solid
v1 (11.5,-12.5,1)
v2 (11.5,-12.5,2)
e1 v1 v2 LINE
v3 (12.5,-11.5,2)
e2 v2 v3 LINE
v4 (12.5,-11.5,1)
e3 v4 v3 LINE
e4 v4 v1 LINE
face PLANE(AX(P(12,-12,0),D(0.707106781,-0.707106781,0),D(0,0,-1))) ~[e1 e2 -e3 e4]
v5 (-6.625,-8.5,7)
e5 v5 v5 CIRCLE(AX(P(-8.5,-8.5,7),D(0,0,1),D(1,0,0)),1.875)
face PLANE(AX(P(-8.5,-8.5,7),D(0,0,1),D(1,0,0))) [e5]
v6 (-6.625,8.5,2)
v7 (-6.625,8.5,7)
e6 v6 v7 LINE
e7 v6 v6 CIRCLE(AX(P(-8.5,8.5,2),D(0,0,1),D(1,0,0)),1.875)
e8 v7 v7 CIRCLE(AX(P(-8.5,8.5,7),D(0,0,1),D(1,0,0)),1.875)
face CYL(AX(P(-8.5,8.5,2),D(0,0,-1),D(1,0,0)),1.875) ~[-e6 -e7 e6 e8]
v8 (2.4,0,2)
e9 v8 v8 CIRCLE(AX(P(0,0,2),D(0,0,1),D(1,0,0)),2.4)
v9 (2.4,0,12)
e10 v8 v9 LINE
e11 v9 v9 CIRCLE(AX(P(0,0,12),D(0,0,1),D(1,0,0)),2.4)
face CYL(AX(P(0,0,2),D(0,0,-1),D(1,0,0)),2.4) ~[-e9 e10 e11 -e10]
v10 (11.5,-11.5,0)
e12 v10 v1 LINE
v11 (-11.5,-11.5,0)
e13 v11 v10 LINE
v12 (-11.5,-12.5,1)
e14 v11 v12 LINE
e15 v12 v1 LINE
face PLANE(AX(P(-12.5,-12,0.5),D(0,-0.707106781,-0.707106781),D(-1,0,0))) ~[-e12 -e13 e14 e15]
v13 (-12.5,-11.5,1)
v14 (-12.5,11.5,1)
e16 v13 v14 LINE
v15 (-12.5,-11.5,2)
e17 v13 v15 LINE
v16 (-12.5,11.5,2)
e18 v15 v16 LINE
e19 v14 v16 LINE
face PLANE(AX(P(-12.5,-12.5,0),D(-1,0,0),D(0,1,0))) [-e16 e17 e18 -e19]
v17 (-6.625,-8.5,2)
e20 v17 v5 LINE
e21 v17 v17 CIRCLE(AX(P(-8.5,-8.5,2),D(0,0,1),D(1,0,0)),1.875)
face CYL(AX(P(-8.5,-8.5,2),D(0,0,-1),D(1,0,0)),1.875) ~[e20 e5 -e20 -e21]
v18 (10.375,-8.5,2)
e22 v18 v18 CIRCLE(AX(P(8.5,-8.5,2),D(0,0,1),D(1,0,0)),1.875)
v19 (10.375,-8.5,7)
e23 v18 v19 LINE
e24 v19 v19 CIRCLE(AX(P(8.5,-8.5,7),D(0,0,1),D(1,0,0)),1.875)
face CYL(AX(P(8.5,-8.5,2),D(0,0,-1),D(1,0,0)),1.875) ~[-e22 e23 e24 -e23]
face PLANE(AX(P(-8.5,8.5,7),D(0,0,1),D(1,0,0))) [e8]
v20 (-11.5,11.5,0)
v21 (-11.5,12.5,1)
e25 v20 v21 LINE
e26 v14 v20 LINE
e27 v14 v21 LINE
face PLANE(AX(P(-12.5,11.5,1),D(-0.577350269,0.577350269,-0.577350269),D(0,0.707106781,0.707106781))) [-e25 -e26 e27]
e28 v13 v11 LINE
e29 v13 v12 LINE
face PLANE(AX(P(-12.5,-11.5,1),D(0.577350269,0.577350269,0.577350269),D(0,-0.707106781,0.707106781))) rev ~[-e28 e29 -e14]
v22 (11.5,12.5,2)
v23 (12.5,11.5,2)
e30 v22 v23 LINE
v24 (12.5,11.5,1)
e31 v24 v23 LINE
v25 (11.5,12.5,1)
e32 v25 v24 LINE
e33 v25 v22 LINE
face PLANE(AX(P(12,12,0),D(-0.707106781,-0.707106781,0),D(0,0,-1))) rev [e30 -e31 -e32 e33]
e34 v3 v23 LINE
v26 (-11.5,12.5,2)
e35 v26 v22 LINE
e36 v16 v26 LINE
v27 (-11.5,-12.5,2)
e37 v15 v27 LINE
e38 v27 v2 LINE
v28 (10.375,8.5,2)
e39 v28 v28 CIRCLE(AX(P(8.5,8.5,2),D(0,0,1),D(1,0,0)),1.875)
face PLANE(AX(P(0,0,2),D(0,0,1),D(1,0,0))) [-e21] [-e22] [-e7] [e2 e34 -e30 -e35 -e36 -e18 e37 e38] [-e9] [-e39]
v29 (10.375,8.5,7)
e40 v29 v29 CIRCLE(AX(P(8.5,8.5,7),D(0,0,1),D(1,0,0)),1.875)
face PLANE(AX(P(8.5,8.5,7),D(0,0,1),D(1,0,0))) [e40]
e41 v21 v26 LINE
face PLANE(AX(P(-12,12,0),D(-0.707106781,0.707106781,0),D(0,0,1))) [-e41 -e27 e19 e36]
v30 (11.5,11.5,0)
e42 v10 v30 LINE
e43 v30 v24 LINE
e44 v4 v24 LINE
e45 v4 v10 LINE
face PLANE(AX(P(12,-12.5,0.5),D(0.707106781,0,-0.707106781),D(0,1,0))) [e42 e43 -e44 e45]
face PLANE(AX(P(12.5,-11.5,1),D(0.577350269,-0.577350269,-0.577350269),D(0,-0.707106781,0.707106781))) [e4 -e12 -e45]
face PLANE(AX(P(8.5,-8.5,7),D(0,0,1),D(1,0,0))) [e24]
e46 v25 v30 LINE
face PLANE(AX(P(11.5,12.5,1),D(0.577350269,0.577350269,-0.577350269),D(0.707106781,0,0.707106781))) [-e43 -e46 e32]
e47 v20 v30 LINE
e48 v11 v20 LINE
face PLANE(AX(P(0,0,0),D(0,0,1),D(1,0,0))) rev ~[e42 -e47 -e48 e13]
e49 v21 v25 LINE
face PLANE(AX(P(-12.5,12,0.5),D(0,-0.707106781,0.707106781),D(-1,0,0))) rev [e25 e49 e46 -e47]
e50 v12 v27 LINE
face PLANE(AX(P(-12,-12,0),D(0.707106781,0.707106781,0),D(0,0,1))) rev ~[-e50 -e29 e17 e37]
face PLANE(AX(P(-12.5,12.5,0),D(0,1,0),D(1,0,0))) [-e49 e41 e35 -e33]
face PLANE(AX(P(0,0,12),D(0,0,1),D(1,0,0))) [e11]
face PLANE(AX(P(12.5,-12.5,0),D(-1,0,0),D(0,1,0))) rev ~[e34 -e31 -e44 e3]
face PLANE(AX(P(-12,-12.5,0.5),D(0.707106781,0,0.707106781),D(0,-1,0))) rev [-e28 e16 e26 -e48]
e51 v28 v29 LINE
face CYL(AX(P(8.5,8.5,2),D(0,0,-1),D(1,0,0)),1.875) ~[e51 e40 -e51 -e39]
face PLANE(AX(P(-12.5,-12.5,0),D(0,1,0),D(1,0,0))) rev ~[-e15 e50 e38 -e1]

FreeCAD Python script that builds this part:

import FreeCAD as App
import Part
import Sketcher
from FreeCAD import Vector
Q = App.Units.Quantity


def edges_at(feature, points):
    """Names of the edges that pass closest to the given points."""
    edges = feature.Shape.Edges
    near = lambda p: min(range(len(edges)), key=lambda i: edges[i].distToShape(Part.Vertex(*p))[0])
    return sorted({f"Edge{near(p) + 1}" for p in points})


def add_polygon(sketch, points):
    """Adds a closed chain of lines whose ends are joined by coincident constraints."""
    first, n = sketch.GeometryCount, len(points)
    for a, b in zip(points, points[1:] + points[:1]):
        sketch.addGeometry(Part.LineSegment(App.Vector(*a, 0), App.Vector(*b, 0)), False)
    for i in range(n):
        sketch.addConstraint(Sketcher.Constraint("Coincident", first + i, 2, first + (i + 1) % n, 1))

doc = App.newDocument("Part")
params = doc.addObject("Spreadsheet::Sheet", "Params")
for row, (alias, value) in enumerate([
    ("sketch1_width", "25 mm"),
    ("pad1_length", "2 mm"),
    ("sketch2_diameter", "4.8 mm"),
    ("pad2_length", "10 mm"),
    ("sketch3_diameter", "3.75 mm"),
    ("pad3_length", "5 mm"),
    ("chamfer_size", "1 mm"),
], start=1):
    params.set(f"A{row}", alias)
    params.set(f"B{row}", "=" + value)
    params.setAlias(f"B{row}", alias)

body = doc.addObject("PartDesign::Body", "Body")

sketch1 = body.newObject("Sketcher::SketchObject", "Sketch")
sketch1.AttachmentSupport = (doc.getObject("XY_Plane"), [""])
sketch1.MapMode = "FlatFace"
add_polygon(sketch1, [(-12.5, 12.5), (-12.5, -12.5), (12.5, -12.5), (12.5, 12.5)])
sketch1.addConstraint(Sketcher.Constraint("Vertical", 0))
sketch1.addConstraint(Sketcher.Constraint("Horizontal", 1))
sketch1.addConstraint(Sketcher.Constraint("Vertical", 2))
sketch1.addConstraint(Sketcher.Constraint("Horizontal", 3))
sketch1.addConstraint(Sketcher.Constraint("Symmetric", 0, 2, 2, 2, -1, 1))
sketch1.addConstraint(Sketcher.Constraint("Equal", 3, 0))
sketch1.addConstraint(Sketcher.Constraint("DistanceX", 1, 1, 1, 2, Q("25 mm")))
sketch1.setExpression("Constraints[10]", "Params.sketch1_width")
pad1 = body.newObject("PartDesign::Pad", "Pad")
pad1.Profile = sketch1
pad1.setExpression("Length", "Params.pad1_length")

sketch2 = body.newObject("Sketcher::SketchObject", "Sketch001")
sketch2.AttachmentSupport = (doc.getObject("XY_Plane"), [""])
sketch2.MapMode = "FlatFace"
sketch2.AttachmentOffset = App.Placement(Vector(0, 0, 2), App.Rotation())
sketch2.addGeometry(Part.Circle(Vector(0, 0, 0), Vector(0, 0, 1), 2.4), False)
sketch2.addConstraint(Sketcher.Constraint("Coincident", 0, 3, -1, 1))
sketch2.addConstraint(Sketcher.Constraint("Diameter", 0, Q("4.8 mm")))
sketch2.setExpression("Constraints[1]", "Params.sketch2_diameter")
pad2 = body.newObject("PartDesign::Pad", "Pad001")
pad2.Profile = sketch2
pad2.setExpression("Length", "Params.pad2_length")

sketch3 = body.newObject("Sketcher::SketchObject", "Sketch002")
sketch3.AttachmentSupport = (doc.getObject("XY_Plane"), [""])
sketch3.MapMode = "FlatFace"
sketch3.AttachmentOffset = App.Placement(Vector(0, 0, 2), App.Rotation())
sketch3.addGeometry(Part.Circle(Vector(-8.5, 8.5, 0), Vector(0, 0, 1), 1.875), False)
sketch3.addGeometry(Part.Circle(Vector(8.5, 8.5, 0), Vector(0, 0, 1), 1.875), False)
sketch3.addGeometry(Part.Circle(Vector(8.5, -8.5, 0), Vector(0, 0, 1), 1.875), False)
sketch3.addGeometry(Part.Circle(Vector(-8.5, -8.5, 0), Vector(0, 0, 1), 1.875), False)
sketch3.addConstraint(Sketcher.Constraint("Equal", 0, 1))
sketch3.addConstraint(Sketcher.Constraint("Equal", 1, 2))
sketch3.addConstraint(Sketcher.Constraint("Equal", 2, 3))
sketch3.addConstraint(Sketcher.Constraint("Symmetric", 0, 3, 2, 3, -1, 1))
sketch3.addConstraint(Sketcher.Constraint("Symmetric", 1, 3, 3, 3, -1, 1))
sketch3.addConstraint(Sketcher.Constraint("Symmetric", 0, 3, 1, 3, -2))
sketch3.addConstraint(Sketcher.Constraint("Diameter", 0, Q("3.75 mm")))
sketch3.addConstraint(Sketcher.Constraint("DistanceX", 0, 3, 1, 3, Q("17 mm")))
sketch3.addConstraint(Sketcher.Constraint("DistanceY", 2, 3, 1, 3, Q("17 mm")))
sketch3.setExpression("Constraints[6]", "Params.sketch3_diameter")
pad3 = body.newObject("PartDesign::Pad", "Pad002")
pad3.Profile = sketch3
pad3.setExpression("Length", "Params.pad3_length")
doc.recompute()

chamfer = body.newObject("PartDesign::Chamfer", "Chamfer")
chamfer.Base = (pad3, edges_at(pad3, [
    (0, -12.5, 0),
    (12.5, 0, 0),
    (0, 12.5, 0),
    (-12.5, 0, 0),
    (-12.5, -12.5, 1),
    (12.5, -12.5, 1),
    (12.5, 12.5, 1),
    (-12.5, 12.5, 1),
]))
chamfer.setExpression("Size", "Params.chamfer_size")

doc.recompute()
